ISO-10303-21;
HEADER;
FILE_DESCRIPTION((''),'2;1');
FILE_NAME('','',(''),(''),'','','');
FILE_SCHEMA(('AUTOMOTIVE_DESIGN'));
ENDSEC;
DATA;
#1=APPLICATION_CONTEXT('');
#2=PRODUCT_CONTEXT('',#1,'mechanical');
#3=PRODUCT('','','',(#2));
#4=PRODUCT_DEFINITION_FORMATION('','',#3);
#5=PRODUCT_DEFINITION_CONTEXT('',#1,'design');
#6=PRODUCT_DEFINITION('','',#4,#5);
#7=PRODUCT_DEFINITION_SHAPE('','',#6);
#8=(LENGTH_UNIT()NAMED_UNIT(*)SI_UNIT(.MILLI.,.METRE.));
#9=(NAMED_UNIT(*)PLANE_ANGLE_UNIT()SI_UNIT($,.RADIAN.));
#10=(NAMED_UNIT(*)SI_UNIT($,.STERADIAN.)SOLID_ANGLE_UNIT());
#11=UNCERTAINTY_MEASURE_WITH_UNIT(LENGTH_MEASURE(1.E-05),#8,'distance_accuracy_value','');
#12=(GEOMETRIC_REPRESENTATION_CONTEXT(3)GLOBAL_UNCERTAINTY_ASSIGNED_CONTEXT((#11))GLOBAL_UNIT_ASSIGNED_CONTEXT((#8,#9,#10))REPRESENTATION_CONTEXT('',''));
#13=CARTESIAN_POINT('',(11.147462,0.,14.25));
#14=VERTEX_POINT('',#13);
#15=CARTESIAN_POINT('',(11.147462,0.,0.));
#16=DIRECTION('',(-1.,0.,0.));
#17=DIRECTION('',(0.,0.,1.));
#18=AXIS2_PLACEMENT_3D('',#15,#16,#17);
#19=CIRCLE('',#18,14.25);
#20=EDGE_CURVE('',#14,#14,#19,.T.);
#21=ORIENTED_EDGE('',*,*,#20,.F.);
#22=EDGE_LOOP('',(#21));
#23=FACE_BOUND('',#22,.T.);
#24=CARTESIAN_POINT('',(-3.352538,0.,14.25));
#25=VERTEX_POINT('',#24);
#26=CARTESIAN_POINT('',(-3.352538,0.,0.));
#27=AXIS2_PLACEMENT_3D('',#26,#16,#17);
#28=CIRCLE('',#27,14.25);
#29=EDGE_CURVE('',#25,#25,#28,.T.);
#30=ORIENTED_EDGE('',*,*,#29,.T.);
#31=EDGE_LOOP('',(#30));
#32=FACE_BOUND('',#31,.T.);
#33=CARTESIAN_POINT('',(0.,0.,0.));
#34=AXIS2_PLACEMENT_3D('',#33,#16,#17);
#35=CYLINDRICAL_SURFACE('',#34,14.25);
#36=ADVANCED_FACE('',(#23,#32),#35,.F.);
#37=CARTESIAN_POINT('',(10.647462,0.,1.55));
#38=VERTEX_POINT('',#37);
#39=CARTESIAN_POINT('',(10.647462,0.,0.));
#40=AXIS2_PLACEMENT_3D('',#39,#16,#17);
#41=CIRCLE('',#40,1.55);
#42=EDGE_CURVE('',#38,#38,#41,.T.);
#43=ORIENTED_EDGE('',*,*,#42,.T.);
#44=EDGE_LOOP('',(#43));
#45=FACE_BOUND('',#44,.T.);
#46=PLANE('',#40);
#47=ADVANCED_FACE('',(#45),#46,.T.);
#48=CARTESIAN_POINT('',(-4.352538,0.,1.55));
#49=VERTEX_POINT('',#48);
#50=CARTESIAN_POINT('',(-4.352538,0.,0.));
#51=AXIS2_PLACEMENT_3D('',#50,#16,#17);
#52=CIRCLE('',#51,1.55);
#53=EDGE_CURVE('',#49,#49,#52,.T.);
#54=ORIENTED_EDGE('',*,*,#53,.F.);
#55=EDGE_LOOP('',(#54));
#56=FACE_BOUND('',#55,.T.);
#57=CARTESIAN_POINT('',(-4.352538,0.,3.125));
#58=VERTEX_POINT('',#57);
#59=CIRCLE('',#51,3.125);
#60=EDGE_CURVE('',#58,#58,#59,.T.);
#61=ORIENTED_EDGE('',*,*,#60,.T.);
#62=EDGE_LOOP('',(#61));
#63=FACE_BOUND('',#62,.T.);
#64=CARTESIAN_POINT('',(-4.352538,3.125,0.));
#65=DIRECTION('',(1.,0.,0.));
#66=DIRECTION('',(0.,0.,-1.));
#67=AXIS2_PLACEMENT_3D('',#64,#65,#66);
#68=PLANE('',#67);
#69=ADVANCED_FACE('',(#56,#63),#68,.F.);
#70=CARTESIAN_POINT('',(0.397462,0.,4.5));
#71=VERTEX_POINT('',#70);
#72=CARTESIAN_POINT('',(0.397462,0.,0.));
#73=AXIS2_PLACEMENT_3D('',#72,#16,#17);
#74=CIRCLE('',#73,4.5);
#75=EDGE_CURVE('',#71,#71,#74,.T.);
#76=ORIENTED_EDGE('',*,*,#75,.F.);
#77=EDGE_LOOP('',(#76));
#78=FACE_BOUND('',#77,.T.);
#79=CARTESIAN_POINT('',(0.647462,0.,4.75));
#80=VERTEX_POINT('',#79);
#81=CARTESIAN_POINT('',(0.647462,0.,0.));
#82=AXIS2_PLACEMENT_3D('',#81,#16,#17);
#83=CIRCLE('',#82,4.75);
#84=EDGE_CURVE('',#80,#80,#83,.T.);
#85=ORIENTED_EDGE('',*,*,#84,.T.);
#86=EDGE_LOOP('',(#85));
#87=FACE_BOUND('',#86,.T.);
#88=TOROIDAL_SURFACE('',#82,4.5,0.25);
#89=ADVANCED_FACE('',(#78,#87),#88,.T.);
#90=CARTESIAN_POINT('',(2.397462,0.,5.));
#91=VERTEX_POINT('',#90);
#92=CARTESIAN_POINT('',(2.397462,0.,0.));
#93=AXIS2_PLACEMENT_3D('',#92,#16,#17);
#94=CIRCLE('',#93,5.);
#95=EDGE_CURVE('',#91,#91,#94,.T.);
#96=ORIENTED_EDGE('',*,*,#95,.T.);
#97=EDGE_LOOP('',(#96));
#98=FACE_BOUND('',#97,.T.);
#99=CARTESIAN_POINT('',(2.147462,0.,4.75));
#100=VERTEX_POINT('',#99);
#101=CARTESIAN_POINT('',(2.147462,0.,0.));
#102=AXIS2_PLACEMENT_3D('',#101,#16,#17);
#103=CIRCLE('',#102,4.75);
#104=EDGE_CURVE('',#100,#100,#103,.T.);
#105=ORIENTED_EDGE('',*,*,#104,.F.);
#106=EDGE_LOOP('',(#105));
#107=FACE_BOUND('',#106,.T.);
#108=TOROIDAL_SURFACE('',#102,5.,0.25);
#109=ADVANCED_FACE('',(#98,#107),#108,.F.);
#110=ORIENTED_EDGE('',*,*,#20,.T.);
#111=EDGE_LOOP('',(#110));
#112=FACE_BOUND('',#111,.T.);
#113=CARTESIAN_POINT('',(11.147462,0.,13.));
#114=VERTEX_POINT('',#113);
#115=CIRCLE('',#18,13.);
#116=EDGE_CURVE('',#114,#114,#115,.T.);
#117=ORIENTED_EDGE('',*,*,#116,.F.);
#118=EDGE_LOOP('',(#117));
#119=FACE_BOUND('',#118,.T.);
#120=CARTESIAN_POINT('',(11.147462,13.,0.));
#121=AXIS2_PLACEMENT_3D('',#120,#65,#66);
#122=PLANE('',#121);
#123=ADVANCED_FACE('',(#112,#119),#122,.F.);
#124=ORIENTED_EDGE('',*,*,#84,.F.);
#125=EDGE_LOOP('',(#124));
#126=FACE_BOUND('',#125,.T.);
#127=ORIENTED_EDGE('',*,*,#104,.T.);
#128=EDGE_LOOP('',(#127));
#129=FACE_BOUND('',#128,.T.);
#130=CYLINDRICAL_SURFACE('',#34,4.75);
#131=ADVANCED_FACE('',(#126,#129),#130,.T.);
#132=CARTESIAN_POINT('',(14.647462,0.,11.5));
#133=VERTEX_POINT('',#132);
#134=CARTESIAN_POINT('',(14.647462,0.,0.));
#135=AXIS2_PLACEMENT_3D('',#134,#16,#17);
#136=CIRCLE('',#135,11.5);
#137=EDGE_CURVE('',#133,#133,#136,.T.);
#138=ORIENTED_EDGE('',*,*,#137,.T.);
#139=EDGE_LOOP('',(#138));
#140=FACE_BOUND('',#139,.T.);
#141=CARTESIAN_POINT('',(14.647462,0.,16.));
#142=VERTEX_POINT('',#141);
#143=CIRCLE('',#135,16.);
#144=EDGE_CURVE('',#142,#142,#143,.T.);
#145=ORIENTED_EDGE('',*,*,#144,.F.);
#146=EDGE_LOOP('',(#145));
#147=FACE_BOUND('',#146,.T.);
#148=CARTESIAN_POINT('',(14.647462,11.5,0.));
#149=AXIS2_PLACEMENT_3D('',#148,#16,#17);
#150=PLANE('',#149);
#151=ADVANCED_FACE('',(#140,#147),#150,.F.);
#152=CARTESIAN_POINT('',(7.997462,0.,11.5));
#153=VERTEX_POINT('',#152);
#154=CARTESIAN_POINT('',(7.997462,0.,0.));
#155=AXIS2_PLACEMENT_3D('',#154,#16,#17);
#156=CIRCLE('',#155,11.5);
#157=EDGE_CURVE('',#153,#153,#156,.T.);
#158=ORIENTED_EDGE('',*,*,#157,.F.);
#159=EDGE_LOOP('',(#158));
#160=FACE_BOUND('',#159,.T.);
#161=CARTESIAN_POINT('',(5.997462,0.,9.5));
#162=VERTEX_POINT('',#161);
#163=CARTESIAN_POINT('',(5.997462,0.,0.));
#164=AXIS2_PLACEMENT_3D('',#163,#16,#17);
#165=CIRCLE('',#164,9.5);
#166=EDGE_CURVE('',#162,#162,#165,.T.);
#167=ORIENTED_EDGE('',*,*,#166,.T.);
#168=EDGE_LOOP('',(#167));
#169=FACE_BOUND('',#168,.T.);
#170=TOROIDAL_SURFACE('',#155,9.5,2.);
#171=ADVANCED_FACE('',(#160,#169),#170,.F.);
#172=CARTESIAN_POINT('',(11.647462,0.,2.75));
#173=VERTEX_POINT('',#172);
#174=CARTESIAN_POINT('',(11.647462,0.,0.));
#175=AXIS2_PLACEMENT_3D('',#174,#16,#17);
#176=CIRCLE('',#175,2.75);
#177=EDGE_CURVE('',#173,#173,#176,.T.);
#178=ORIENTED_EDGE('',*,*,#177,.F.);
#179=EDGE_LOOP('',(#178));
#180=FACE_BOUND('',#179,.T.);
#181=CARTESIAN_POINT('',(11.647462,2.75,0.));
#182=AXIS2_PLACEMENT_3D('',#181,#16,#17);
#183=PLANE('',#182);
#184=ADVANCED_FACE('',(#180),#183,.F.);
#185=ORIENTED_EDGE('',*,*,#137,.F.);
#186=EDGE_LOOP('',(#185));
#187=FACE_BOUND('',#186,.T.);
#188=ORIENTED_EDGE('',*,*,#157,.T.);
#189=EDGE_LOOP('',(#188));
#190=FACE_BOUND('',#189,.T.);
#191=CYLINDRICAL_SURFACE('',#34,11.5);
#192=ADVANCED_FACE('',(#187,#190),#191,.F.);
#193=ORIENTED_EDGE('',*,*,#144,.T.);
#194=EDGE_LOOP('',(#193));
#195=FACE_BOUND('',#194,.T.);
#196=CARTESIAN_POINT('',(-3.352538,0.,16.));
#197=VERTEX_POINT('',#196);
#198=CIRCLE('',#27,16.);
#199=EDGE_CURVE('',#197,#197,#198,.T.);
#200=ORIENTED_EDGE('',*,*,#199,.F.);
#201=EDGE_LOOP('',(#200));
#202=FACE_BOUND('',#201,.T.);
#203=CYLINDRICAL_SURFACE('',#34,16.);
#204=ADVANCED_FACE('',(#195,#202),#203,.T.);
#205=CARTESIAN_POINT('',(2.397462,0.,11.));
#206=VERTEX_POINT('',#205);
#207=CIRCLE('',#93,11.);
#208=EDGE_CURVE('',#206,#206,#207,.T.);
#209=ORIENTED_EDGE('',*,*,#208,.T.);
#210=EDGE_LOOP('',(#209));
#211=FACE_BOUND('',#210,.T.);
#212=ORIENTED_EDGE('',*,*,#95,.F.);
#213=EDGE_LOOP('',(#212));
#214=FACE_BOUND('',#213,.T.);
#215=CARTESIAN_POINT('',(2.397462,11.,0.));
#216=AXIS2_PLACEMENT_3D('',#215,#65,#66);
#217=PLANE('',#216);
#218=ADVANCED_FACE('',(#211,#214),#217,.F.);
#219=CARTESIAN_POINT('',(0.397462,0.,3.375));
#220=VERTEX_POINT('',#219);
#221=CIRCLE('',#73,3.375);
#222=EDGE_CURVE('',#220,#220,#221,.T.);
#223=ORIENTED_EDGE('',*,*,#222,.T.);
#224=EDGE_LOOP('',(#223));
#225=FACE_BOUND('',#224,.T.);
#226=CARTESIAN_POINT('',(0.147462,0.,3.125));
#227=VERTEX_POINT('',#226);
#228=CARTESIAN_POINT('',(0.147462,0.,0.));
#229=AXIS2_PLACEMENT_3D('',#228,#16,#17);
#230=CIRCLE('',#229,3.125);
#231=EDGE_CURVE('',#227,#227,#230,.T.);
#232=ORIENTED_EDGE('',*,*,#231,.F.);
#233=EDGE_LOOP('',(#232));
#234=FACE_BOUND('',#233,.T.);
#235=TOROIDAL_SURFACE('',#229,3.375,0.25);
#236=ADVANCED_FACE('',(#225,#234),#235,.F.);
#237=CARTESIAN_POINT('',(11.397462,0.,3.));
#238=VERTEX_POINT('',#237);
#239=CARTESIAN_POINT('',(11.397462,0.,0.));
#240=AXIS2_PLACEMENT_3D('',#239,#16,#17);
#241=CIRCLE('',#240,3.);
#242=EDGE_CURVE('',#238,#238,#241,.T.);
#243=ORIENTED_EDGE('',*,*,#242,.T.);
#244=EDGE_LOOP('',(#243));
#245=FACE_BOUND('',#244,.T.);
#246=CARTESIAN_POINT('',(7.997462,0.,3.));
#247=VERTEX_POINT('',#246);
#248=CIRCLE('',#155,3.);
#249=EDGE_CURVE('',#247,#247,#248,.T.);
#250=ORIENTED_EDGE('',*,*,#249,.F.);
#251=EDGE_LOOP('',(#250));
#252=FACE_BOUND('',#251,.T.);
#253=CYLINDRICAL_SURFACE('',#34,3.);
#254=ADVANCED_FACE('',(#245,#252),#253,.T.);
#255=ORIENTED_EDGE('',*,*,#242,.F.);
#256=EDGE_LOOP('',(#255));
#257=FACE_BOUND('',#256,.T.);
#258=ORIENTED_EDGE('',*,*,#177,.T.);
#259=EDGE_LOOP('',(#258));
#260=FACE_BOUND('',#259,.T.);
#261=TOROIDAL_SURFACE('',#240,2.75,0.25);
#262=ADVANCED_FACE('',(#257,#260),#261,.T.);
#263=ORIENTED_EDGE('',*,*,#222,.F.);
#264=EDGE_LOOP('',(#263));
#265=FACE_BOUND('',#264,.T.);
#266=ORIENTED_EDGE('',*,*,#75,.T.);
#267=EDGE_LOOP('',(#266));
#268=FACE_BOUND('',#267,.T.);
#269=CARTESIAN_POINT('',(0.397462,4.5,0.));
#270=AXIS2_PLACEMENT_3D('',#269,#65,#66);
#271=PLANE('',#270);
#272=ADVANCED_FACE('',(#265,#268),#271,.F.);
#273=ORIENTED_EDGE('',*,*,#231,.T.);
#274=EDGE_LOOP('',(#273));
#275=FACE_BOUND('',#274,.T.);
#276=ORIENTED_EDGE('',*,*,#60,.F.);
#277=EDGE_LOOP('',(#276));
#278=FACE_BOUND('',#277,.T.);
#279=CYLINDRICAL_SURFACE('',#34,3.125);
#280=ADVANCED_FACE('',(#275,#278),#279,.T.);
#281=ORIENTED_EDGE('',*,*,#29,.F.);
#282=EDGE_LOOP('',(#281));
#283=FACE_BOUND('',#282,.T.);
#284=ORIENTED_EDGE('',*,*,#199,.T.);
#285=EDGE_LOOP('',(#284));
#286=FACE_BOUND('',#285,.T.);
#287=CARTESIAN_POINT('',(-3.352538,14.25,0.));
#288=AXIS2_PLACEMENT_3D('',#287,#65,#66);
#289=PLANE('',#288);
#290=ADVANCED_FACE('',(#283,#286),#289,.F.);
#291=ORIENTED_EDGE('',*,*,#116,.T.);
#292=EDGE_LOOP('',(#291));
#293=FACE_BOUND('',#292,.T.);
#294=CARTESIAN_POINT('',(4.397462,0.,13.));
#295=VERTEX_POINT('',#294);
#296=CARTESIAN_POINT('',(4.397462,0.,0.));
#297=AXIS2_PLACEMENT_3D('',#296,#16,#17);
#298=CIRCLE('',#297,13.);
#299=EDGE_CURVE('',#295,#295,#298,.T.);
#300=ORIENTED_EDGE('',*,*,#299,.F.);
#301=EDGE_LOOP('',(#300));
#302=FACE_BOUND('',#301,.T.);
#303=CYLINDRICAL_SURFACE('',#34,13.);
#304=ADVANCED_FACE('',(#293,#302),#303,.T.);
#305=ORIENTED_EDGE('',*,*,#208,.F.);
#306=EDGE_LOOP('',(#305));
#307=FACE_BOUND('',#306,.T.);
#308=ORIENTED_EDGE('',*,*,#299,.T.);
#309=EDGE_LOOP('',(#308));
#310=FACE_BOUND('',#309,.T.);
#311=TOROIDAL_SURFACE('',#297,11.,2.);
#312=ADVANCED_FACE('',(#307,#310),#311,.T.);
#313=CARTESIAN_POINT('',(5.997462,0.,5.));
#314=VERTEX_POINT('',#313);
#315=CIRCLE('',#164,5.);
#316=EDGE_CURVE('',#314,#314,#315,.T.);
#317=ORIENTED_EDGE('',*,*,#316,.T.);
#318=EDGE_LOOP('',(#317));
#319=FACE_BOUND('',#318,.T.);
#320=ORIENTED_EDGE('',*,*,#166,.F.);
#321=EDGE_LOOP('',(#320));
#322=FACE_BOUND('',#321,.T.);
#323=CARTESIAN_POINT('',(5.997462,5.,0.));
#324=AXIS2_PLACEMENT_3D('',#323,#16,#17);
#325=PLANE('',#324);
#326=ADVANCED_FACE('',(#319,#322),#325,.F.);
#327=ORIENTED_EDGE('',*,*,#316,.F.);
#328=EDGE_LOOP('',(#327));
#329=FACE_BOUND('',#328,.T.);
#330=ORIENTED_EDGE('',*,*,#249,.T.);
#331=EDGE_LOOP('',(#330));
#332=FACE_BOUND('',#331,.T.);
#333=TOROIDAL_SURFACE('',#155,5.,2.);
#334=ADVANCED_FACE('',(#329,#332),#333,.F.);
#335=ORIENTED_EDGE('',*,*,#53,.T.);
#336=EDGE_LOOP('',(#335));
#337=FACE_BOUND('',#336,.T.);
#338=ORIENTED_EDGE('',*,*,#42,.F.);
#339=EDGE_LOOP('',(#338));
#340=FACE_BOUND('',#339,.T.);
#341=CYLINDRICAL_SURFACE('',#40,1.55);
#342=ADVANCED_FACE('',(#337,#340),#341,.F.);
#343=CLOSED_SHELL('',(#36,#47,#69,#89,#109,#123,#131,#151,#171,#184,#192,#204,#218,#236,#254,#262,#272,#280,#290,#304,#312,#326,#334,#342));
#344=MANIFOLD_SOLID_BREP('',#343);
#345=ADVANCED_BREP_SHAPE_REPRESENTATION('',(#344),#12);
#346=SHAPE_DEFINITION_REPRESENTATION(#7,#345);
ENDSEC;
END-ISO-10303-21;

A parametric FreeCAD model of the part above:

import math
import FreeCAD as App
import Part
import Sketcher
from FreeCAD import Vector

doc = App.newDocument("Part")
params = doc.addObject("Spreadsheet::Sheet", "Params")
for row, (alias, value) in enumerate([
    ("sketch1_radius", "2 mm"),
    ("sketch1_width", "18 mm"),
    ("sketch1_width2", "16 mm"),
    ("sketch1_height", "6 mm"),
    ("sketch1_radius2", "0.25 mm"),
    ("revolution_angle", "360 deg"),
    ("sketch2_diameter", "3.1 mm"),
    ("pocket1_length", "15 mm"),
], start=1):
    params.set(f"A{row}", alias)
    params.set(f"B{row}", "=" + value)
    params.setAlias(f"B{row}", alias)

body = doc.addObject("PartDesign::Body", "Body")

sketch1 = doc.addObject("Sketcher::SketchObject", "Sketch")
body.addObject(sketch1)
sketch1.AttachmentSupport = (doc.XY_Plane, [""])
sketch1.MapMode = "FlatFace"
sketch1.addGeometry(Part.LineSegment(Vector(14.65, 11.5, 0), Vector(14.65, 16, 0)), False)
sketch1.addGeometry(Part.LineSegment(Vector(14.65, 16, 0), Vector(-3.35, 16, 0)), False)
sketch1.addGeometry(Part.LineSegment(Vector(-3.35, 16, 0), Vector(-3.35, 14.25, 0)), False)
sketch1.addGeometry(Part.LineSegment(Vector(-3.35, 14.25, 0), Vector(11.15, 14.25, 0)), False)
sketch1.addGeometry(Part.LineSegment(Vector(11.15, 14.25, 0), Vector(11.15, 13, 0)), False)
sketch1.addGeometry(Part.LineSegment(Vector(11.15, 13, 0), Vector(4.4, 13, 0)), False)
sketch1.addGeometry(Part.ArcOfCircle(Part.Circle(Vector(4.4, 11, 0), Vector(0, 0, 1), 2), math.radians(90), math.radians(180)), False)
sketch1.addGeometry(Part.LineSegment(Vector(2.4, 11, 0), Vector(2.4, 5, 0)), False)
sketch1.addGeometry(Part.ArcOfCircle(Part.Circle(Vector(2.15, 5, 0), Vector(0, 0, 1), 0.25), math.radians(-90), math.radians(0)), False)
sketch1.addGeometry(Part.LineSegment(Vector(2.15, 4.75, 0), Vector(0.65, 4.75, 0)), False)
sketch1.addGeometry(Part.ArcOfCircle(Part.Circle(Vector(0.65, 4.5, 0), Vector(0, 0, 1), 0.25), math.radians(90), math.radians(180)), False)
sketch1.addGeometry(Part.LineSegment(Vector(0.4, 4.5, 0), Vector(0.4, 3.38, 0)), False)
sketch1.addGeometry(Part.ArcOfCircle(Part.Circle(Vector(0.15, 3.37, 0), Vector(0, 0, 1), 0.25), math.radians(-90), math.radians(0)), False)
sketch1.addGeometry(Part.LineSegment(Vector(0.15, 3.12, 0), Vector(-4.35, 3.12, 0)), False)
sketch1.addGeometry(Part.LineSegment(Vector(-4.35, 3.12, 0), Vector(-4.35, 0, 0)), False)
sketch1.addGeometry(Part.LineSegment(Vector(-4.35, 0, 0), Vector(11.65, 0, 0)), False)
sketch1.addGeometry(Part.LineSegment(Vector(11.65, 0, 0), Vector(11.65, 2.75, 0)), False)
sketch1.addGeometry(Part.ArcOfCircle(Part.Circle(Vector(11.4, 2.75, 0), Vector(0, 0, 1), 0.25), math.radians(0), math.radians(90)), False)
sketch1.addGeometry(Part.LineSegment(Vector(11.4, 3, 0), Vector(8, 3, 0)), False)
sketch1.addGeometry(Part.ArcOfCircle(Part.Circle(Vector(8, 5, 0), Vector(0, 0, 1), 2), math.radians(-180), math.radians(-90)), False)
sketch1.addGeometry(Part.LineSegment(Vector(6, 5, 0), Vector(6, 9.5, 0)), False)
sketch1.addGeometry(Part.ArcOfCircle(Part.Circle(Vector(8, 9.5, 0), Vector(0, 0, 1), 2), math.radians(90), math.radians(180)), False)
sketch1.addGeometry(Part.LineSegment(Vector(8, 11.5, 0), Vector(14.65, 11.5, 0)), False)
sketch1.addConstraint(Sketcher.Constraint("Coincident", 0, 2, 1, 1))
sketch1.addConstraint(Sketcher.Constraint("Coincident", 1, 2, 2, 1))
sketch1.addConstraint(Sketcher.Constraint("Coincident", 2, 2, 3, 1))
sketch1.addConstraint(Sketcher.Constraint("Coincident", 3, 2, 4, 1))
sketch1.addConstraint(Sketcher.Constraint("Coincident", 4, 2, 5, 1))
sketch1.addConstraint(Sketcher.Constraint("Tangent", 5, 2, 6, 1))
sketch1.addConstraint(Sketcher.Constraint("Tangent", 6, 2, 7, 1))
sketch1.addConstraint(Sketcher.Constraint("Tangent", 7, 2, 8, 2))
sketch1.addConstraint(Sketcher.Constraint("Tangent", 8, 1, 9, 1))
sketch1.addConstraint(Sketcher.Constraint("Tangent", 9, 2, 10, 1))
sketch1.addConstraint(Sketcher.Constraint("Tangent", 10, 2, 11, 1))
sketch1.addConstraint(Sketcher.Constraint("Tangent", 11, 2, 12, 2))
sketch1.addConstraint(Sketcher.Constraint("Tangent", 12, 1, 13, 1))
sketch1.addConstraint(Sketcher.Constraint("Coincident", 13, 2, 14, 1))
sketch1.addConstraint(Sketcher.Constraint("Coincident", 14, 2, 15, 1))
sketch1.addConstraint(Sketcher.Constraint("Coincident", 15, 2, 16, 1))
sketch1.addConstraint(Sketcher.Constraint("Tangent", 16, 2, 17, 1))
sketch1.addConstraint(Sketcher.Constraint("Tangent", 17, 2, 18, 1))
sketch1.addConstraint(Sketcher.Constraint("Tangent", 18, 2, 19, 2))
sketch1.addConstraint(Sketcher.Constraint("Tangent", 19, 1, 20, 1))
sketch1.addConstraint(Sketcher.Constraint("Tangent", 20, 2, 21, 2))
sketch1.addConstraint(Sketcher.Constraint("Tangent", 21, 1, 22, 1))
sketch1.addConstraint(Sketcher.Constraint("Coincident", 22, 2, 0, 1))
sketch1.addConstraint(Sketcher.Constraint("Vertical", 0))
sketch1.addConstraint(Sketcher.Constraint("Horizontal", 1))
sketch1.addConstraint(Sketcher.Constraint("Vertical", 2))
sketch1.addConstraint(Sketcher.Constraint("Horizontal", 3))
sketch1.addConstraint(Sketcher.Constraint("Vertical", 4))
sketch1.addConstraint(Sketcher.Constraint("Horizontal", 5))
sketch1.addConstraint(Sketcher.Constraint("Vertical", 7))
sketch1.addConstraint(Sketcher.Constraint("Horizontal", 9))
sketch1.addConstraint(Sketcher.Constraint("Vertical", 11))
sketch1.addConstraint(Sketcher.Constraint("Horizontal", 13))
sketch1.addConstraint(Sketcher.Constraint("Vertical", 14))
sketch1.addConstraint(Sketcher.Constraint("Horizontal", 15))
sketch1.addConstraint(Sketcher.Constraint("Vertical", 16))
sketch1.addConstraint(Sketcher.Constraint("Horizontal", 18))
sketch1.addConstraint(Sketcher.Constraint("Vertical", 20))
sketch1.addConstraint(Sketcher.Constraint("Horizontal", 22))
sketch1.addConstraint(Sketcher.Constraint("Equal", 8, 10))
sketch1.addConstraint(Sketcher.Constraint("Equal", 10, 12))
sketch1.addConstraint(Sketcher.Constraint("Equal", 12, 17))
sketch1.addConstraint(Sketcher.Constraint("Equal", 6, 19))
sketch1.addConstraint(Sketcher.Constraint("Equal", 19, 21))
sketch1.addConstraint(Sketcher.Constraint("PointOnObject", 14, 2, -1))
sketch1.addConstraint(Sketcher.Constraint("Horizontal", 8, 3, 19, 3))
sketch1.addConstraint(Sketcher.Constraint("Equal", 13, 0))
sketch1.addConstraint(Sketcher.Constraint("Equal", 0, 20))
sketch1.addConstraint(Sketcher.Constraint("Radius", 6, 2.0))
sketch1.addConstraint(Sketcher.Constraint("DistanceX", 1, 2, 1, 1, 18.0))
sketch1.addConstraint(Sketcher.Constraint("DistanceX", 15, 1, 15, 2, 16.0))
sketch1.addConstraint(Sketcher.Constraint("DistanceY", 7, 2, 7, 1, 6.0))
sketch1.addConstraint(Sketcher.Constraint("Radius", 8, 0.25))
sketch1.addConstraint(Sketcher.Constraint("DistanceX", 3, 1, 3, 2, 14.5))
sketch1.addConstraint(Sketcher.Constraint("DistanceX", 9, 2, 9, 1, 1.5))
sketch1.addConstraint(Sketcher.Constraint("DistanceX", 13, 2, 13, 1, 4.5))
sketch1.addConstraint(Sketcher.Constraint("DistanceX", 18, 2, 18, 1, 3.4))
sketch1.addConstraint(Sketcher.Constraint("DistanceY", -1, 1, 6, 3, 11.0))
sketch1.addConstraint(Sketcher.Constraint("DistanceX", 1, 2, 10, 3, 4.0))
sketch1.addConstraint(Sketcher.Constraint("DistanceY", 2, 2, 2, 1, 1.75))
sketch1.addConstraint(Sketcher.Constraint("DistanceY", 11, 2, 11, 1, 1.125))
sketch1.addConstraint(Sketcher.Constraint("DistanceX", -1, 1, 6, 3, 4.397462))
sketch1.setExpression("Constraints[48]", "Params.sketch1_radius")
sketch1.setExpression("Constraints[49]", "Params.sketch1_width")
sketch1.setExpression("Constraints[50]", "Params.sketch1_width2")
sketch1.setExpression("Constraints[51]", "Params.sketch1_height")
sketch1.setExpression("Constraints[52]", "Params.sketch1_radius2")
revolution = doc.addObject("PartDesign::Revolution", "Revolution")
body.addObject(revolution)
revolution.Profile = sketch1
revolution.ReferenceAxis = (sketch1, ["H_Axis"])
revolution.setExpression("Angle", "Params.revolution_angle")

sketch2 = doc.addObject("Sketcher::SketchObject", "Sketch001")
body.addObject(sketch2)
sketch2.AttachmentSupport = (doc.YZ_Plane, [""])
sketch2.MapMode = "FlatFace"
sketch2.AttachmentOffset = App.Placement(Vector(0, 0, -4.352538), App.Rotation())
sketch2.addGeometry(Part.Circle(Vector(0, 0, 0), Vector(0, 0, 1), 1.6), False)
sketch2.addConstraint(Sketcher.Constraint("Coincident", 0, 3, -1, 1))
sketch2.addConstraint(Sketcher.Constraint("Diameter", 0, 3.1))
sketch2.setExpression("Constraints[1]", "Params.sketch2_diameter")
pocket1 = doc.addObject("PartDesign::Pocket", "Pocket")
body.addObject(pocket1)
pocket1.Profile = sketch2
pocket1.setExpression("Length", "Params.pocket1_length")
pocket1.Reversed = True

doc.recompute()
